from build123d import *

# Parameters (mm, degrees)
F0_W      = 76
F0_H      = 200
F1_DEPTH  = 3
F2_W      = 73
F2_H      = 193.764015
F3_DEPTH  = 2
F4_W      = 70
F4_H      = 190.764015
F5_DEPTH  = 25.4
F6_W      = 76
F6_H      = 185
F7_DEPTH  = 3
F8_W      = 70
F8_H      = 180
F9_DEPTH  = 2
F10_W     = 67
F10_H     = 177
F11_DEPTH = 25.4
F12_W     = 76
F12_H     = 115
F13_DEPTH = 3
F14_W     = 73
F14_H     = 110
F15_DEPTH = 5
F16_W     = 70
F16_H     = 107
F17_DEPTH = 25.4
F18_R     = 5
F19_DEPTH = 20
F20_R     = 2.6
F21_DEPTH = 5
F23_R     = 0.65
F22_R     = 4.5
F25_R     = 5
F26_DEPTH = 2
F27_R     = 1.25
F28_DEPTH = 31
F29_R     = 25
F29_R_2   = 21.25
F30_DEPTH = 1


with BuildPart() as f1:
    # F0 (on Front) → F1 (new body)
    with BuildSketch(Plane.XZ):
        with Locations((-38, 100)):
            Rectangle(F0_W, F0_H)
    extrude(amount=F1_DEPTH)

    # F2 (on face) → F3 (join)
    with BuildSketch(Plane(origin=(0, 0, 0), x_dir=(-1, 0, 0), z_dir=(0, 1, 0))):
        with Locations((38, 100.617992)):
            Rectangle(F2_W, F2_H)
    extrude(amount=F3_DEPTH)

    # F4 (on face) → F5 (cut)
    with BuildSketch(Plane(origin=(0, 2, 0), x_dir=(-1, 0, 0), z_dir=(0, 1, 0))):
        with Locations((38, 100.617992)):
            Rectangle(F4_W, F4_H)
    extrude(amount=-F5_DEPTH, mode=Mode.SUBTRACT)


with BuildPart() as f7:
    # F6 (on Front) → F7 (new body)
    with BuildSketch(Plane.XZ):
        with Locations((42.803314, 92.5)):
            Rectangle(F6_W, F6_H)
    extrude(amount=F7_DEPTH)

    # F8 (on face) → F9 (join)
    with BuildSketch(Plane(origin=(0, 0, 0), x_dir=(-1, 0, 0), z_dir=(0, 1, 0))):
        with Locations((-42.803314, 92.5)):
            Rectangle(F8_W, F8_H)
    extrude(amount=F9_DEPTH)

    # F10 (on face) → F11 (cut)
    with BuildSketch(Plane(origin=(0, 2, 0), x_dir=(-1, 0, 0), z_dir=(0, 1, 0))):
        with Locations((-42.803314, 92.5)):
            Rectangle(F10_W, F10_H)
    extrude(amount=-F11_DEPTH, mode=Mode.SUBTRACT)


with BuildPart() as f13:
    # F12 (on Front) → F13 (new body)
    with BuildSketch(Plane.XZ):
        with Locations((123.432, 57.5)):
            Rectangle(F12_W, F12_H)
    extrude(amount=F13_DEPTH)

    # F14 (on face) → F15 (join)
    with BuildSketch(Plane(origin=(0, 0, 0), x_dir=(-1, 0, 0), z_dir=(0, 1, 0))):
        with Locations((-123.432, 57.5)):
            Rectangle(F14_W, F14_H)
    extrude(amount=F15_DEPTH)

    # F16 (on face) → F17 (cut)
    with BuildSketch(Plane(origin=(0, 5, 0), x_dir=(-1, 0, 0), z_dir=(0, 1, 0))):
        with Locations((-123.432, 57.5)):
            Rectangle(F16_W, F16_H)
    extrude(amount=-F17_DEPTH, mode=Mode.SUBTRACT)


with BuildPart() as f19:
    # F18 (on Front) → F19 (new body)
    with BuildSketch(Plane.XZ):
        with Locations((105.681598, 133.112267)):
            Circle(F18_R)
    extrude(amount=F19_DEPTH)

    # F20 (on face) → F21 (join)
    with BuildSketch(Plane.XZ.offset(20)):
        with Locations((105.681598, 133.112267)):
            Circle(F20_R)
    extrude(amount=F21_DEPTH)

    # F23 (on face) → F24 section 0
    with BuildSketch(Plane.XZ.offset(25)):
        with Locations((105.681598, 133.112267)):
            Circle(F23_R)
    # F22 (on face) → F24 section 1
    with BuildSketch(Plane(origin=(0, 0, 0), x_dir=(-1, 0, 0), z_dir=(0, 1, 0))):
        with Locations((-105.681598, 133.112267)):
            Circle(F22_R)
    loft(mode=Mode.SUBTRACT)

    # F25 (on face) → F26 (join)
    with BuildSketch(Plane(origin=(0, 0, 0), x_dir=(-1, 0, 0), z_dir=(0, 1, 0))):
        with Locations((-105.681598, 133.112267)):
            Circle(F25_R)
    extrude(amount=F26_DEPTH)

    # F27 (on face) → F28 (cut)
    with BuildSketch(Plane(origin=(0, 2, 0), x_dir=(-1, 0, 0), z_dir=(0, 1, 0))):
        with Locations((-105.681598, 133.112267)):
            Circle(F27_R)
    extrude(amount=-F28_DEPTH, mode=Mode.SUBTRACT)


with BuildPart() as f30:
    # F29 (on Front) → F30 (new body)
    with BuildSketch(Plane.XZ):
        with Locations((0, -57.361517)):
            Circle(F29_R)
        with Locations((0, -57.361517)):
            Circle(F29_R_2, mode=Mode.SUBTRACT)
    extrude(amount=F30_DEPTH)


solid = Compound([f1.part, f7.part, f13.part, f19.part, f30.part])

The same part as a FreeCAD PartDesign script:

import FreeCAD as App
import Part
import Sketcher

V = App.Vector
Q = App.Units.Quantity


def add_polygon(sketch, points):
    """Adds a closed chain of lines whose ends are joined by coincident constraints."""
    first, n = sketch.GeometryCount, len(points)
    for a, b in zip(points, points[1:] + points[:1]):
        sketch.addGeometry(Part.LineSegment(App.Vector(*a, 0), App.Vector(*b, 0)), False)
    for i in range(n):
        sketch.addConstraint(Sketcher.Constraint("Coincident", first + i, 2, first + (i + 1) % n, 1))

doc = App.newDocument("Part")
params = doc.addObject("Spreadsheet::Sheet", "Params")
for row, (alias, value) in enumerate([
    ("sketch1_width", "76 mm"),
    ("sketch1_height", "200 mm"),
    ("pad1_length", "3 mm"),
    ("sketch2_width", "73 mm"),
    ("pad2_length", "2 mm"),
    ("sketch3_width", "70 mm"),
    ("pocket1_length", "25.4 mm"),
    ("sketch4_width", "76 mm"),
    ("sketch4_height", "185 mm"),
    ("pad3_length", "3 mm"),
    ("sketch5_width", "70 mm"),
    ("sketch5_height", "180 mm"),
    ("pad4_length", "2 mm"),
    ("sketch6_width", "67 mm"),
    ("sketch6_height", "177 mm"),
    ("pocket2_length", "25.4 mm"),
    ("sketch7_width", "76 mm"),
    ("sketch7_height", "115 mm"),
    ("pad5_length", "3 mm"),
    ("sketch8_width", "73 mm"),
    ("sketch8_height", "110 mm"),
    ("pad6_length", "5 mm"),
    ("sketch9_width", "70 mm"),
    ("sketch9_height", "107 mm"),
    ("pocket3_length", "25.4 mm"),
    ("sketch10_diameter", "10 mm"),
    ("pad7_length", "20 mm"),
    ("sketch11_diameter", "5.2 mm"),
    ("pad8_length", "5 mm"),
    ("sketch12_diameter", "1.3 mm"),
    ("sketch13_diameter", "9 mm"),
    ("sketch14_diameter", "10 mm"),
    ("pad9_length", "2 mm"),
    ("sketch15_diameter", "2.5 mm"),
    ("pocket4_length", "31 mm"),
    ("sketch16_diameter", "50 mm"),
    ("sketch16_diameter2", "42.5 mm"),
    ("pad10_length", "1 mm"),
], start=1):
    params.set(f"A{row}", alias)
    params.set(f"B{row}", "=" + value)
    params.setAlias(f"B{row}", alias)

body = doc.addObject("PartDesign::Body", "Body")

# Sketch on XZ plane
sketch1 = body.newObject("Sketcher::SketchObject", "Sketch")
sketch1.AttachmentSupport = (doc.getObject("XZ_Plane"), [""])
sketch1.MapMode = "FlatFace"
add_polygon(sketch1, [(-76, 200), (-76, 0), (0, 0), (0, 200)])  # lines 0-3
sketch1.addConstraint([
    Sketcher.Constraint("Vertical", 0),
    Sketcher.Constraint("Horizontal", 1),
    Sketcher.Constraint("Vertical", 2),
    Sketcher.Constraint("Horizontal", 3),
    Sketcher.Constraint("Coincident", 1, 2, -1, 1),
    Sketcher.Constraint("DistanceX", 1, 1, 1, 2, Q("76 mm")),
    Sketcher.Constraint("DistanceY", 0, 2, 0, 1, Q("200 mm")),
])
sketch1.setExpression("Constraints[9]", "Params.sketch1_width")
sketch1.setExpression("Constraints[10]", "Params.sketch1_height")
pad1 = body.newObject("PartDesign::Pad", "Pad")
pad1.Profile = sketch1
pad1.setExpression("Length", "Params.pad1_length")

# Sketch on XZ plane
sketch2 = body.newObject("Sketcher::SketchObject", "Sketch001")
sketch2.AttachmentSupport = (doc.getObject("XZ_Plane"), [""])
sketch2.MapMode = "FlatFace"
add_polygon(sketch2, [(-2, 197), (-2, 4), (-74, 4), (-74, 197)])  # lines 0-3
sketch2.addConstraint([
    Sketcher.Constraint("Vertical", 0),
    Sketcher.Constraint("Horizontal", 1),
    Sketcher.Constraint("Vertical", 2),
    Sketcher.Constraint("Horizontal", 3),
    Sketcher.Constraint("DistanceX", 1, 2, 1, 1, Q("73 mm")),
    Sketcher.Constraint("DistanceX", 0, 2, -1, 1, Q("1.5 mm")),
    Sketcher.Constraint("DistanceY", -1, 1, 2, 2, Q("197.5 mm")),
    Sketcher.Constraint("DistanceY", 0, 2, 0, 1, Q("193.764015 mm")),
])
sketch2.setExpression("Constraints[8]", "Params.sketch2_width")
pad2 = body.newObject("PartDesign::Pad", "Pad001")
pad2.Profile = sketch2
pad2.setExpression("Length", "Params.pad2_length")
pad2.Reversed = True

# Sketch on XZ plane
sketch3 = body.newObject("Sketcher::SketchObject", "Sketch002")
sketch3.AttachmentSupport = (doc.getObject("XZ_Plane"), [""])
sketch3.MapMode = "FlatFace"
sketch3.AttachmentOffset = App.Placement(V(0, 0, -2), App.Rotation())
add_polygon(sketch3, [(-3, 196), (-3, 5), (-73, 5), (-73, 196)])  # lines 0-3
sketch3.addConstraint([
    Sketcher.Constraint("Vertical", 0),
    Sketcher.Constraint("Horizontal", 1),
    Sketcher.Constraint("Vertical", 2),
    Sketcher.Constraint("Horizontal", 3),
    Sketcher.Constraint("DistanceX", 1, 2, 1, 1, Q("70 mm")),
    Sketcher.Constraint("DistanceX", 0, 2, -1, 1, Q("3 mm")),
    Sketcher.Constraint("DistanceY", -1, 1, 2, 2, Q("196 mm")),
    Sketcher.Constraint("DistanceY", 0, 2, 0, 1, Q("190.764015 mm")),
])
sketch3.setExpression("Constraints[8]", "Params.sketch3_width")
pocket1 = body.newObject("PartDesign::Pocket", "Pocket")
pocket1.Profile = sketch3
pocket1.setExpression("Length", "Params.pocket1_length")
pocket1.Reversed = True
body2 = doc.addObject("PartDesign::Body", "Body001")

# Sketch on XZ plane
sketch4 = body2.newObject("Sketcher::SketchObject", "Sketch003")
sketch4.AttachmentSupport = (doc.getObject("XZ_Plane001"), [""])
sketch4.MapMode = "FlatFace"
add_polygon(sketch4, [(5, 185), (5, 0), (81, 0), (81, 185)])  # lines 0-3
sketch4.addConstraint([
    Sketcher.Constraint("Vertical", 0),
    Sketcher.Constraint("Horizontal", 1),
    Sketcher.Constraint("Vertical", 2),
    Sketcher.Constraint("Horizontal", 3),
    Sketcher.Constraint("PointOnObject", 0, 2, -1),
    Sketcher.Constraint("DistanceX", 1, 1, 1, 2, Q("76 mm")),
    Sketcher.Constraint("DistanceY", 0, 2, 0, 1, Q("185 mm")),
    Sketcher.Constraint("DistanceX", -1, 1, 0, 2, Q("4.803314 mm")),
])
sketch4.setExpression("Constraints[9]", "Params.sketch4_width")
sketch4.setExpression("Constraints[10]", "Params.sketch4_height")
pad3 = body2.newObject("PartDesign::Pad", "Pad002")
pad3.Profile = sketch4
pad3.setExpression("Length", "Params.pad3_length")

# Sketch on XZ plane
sketch5 = body2.newObject("Sketcher::SketchObject", "Sketch004")
sketch5.AttachmentSupport = (doc.getObject("XZ_Plane001"), [""])
sketch5.MapMode = "FlatFace"
add_polygon(sketch5, [(78, 182), (78, 2), (8, 2), (8, 182)])  # lines 0-3
sketch5.addConstraint([
    Sketcher.Constraint("Vertical", 0),
    Sketcher.Constraint("Horizontal", 1),
    Sketcher.Constraint("Vertical", 2),
    Sketcher.Constraint("Horizontal", 3),
    Sketcher.Constraint("DistanceX", 1, 2, 1, 1, Q("70 mm")),
    Sketcher.Constraint("DistanceY", 0, 2, 0, 1, Q("180 mm")),
    Sketcher.Constraint("DistanceY", -1, 1, 0, 2, Q("2.5 mm")),
    Sketcher.Constraint("DistanceX", -1, 1, 0, 2, Q("77.803314 mm")),
])
sketch5.setExpression("Constraints[8]", "Params.sketch5_width")
sketch5.setExpression("Constraints[9]", "Params.sketch5_height")
pad4 = body2.newObject("PartDesign::Pad", "Pad003")
pad4.Profile = sketch5
pad4.setExpression("Length", "Params.pad4_length")
pad4.Reversed = True

# Sketch on XZ plane
sketch6 = body2.newObject("Sketcher::SketchObject", "Sketch005")
sketch6.AttachmentSupport = (doc.getObject("XZ_Plane001"), [""])
sketch6.MapMode = "FlatFace"
sketch6.AttachmentOffset = App.Placement(V(0, 0, -2), App.Rotation())
add_polygon(sketch6, [(76, 181), (76, 4), (9, 4), (9, 181)])  # lines 0-3
sketch6.addConstraint([
    Sketcher.Constraint("Vertical", 0),
    Sketcher.Constraint("Horizontal", 1),
    Sketcher.Constraint("Vertical", 2),
    Sketcher.Constraint("Horizontal", 3),
    Sketcher.Constraint("DistanceX", 1, 2, 1, 1, Q("67 mm")),
    Sketcher.Constraint("DistanceY", 0, 2, 0, 1, Q("177 mm")),
    Sketcher.Constraint("DistanceY", -1, 1, 0, 2, Q("4 mm")),
    Sketcher.Constraint("DistanceX", -1, 1, 0, 2, Q("76.303314 mm")),
])
sketch6.setExpression("Constraints[8]", "Params.sketch6_width")
sketch6.setExpression("Constraints[9]", "Params.sketch6_height")
pocket2 = body2.newObject("PartDesign::Pocket", "Pocket001")
pocket2.Profile = sketch6
pocket2.setExpression("Length", "Params.pocket2_length")
pocket2.Reversed = True
body3 = doc.addObject("PartDesign::Body", "Body002")

# Sketch on XZ plane
sketch7 = body3.newObject("Sketcher::SketchObject", "Sketch006")
sketch7.AttachmentSupport = (doc.getObject("XZ_Plane002"), [""])
sketch7.MapMode = "FlatFace"
add_polygon(sketch7, [(85, 115), (85, 0), (161, 0), (161, 115)])  # lines 0-3
sketch7.addConstraint([
    Sketcher.Constraint("Vertical", 0),
    Sketcher.Constraint("Horizontal", 1),
    Sketcher.Constraint("Vertical", 2),
    Sketcher.Constraint("Horizontal", 3),
    Sketcher.Constraint("PointOnObject", 0, 2, -1),
    Sketcher.Constraint("DistanceX", 1, 1, 1, 2, Q("76 mm")),
    Sketcher.Constraint("DistanceY", 0, 2, 0, 1, Q("115 mm")),
    Sketcher.Constraint("DistanceX", -1, 1, 0, 2, Q("85.432 mm")),
])
sketch7.setExpression("Constraints[9]", "Params.sketch7_width")
sketch7.setExpression("Constraints[10]", "Params.sketch7_height")
pad5 = body3.newObject("PartDesign::Pad", "Pad004")
pad5.Profile = sketch7
pad5.setExpression("Length", "Params.pad5_length")

# Sketch on XZ plane
sketch8 = body3.newObject("Sketcher::SketchObject", "Sketch007")
sketch8.AttachmentSupport = (doc.getObject("XZ_Plane002"), [""])
sketch8.MapMode = "FlatFace"
add_polygon(sketch8, [(160, 112), (160, 2), (87, 2), (87, 112)])  # lines 0-3
sketch8.addConstraint([
    Sketcher.Constraint("Vertical", 0),
    Sketcher.Constraint("Horizontal", 1),
    Sketcher.Constraint("Vertical", 2),
    Sketcher.Constraint("Horizontal", 3),
    Sketcher.Constraint("DistanceX", 1, 2, 1, 1, Q("73 mm")),
    Sketcher.Constraint("DistanceY", 0, 2, 0, 1, Q("110 mm")),
    Sketcher.Constraint("DistanceY", -1, 1, 0, 2, Q("2.5 mm")),
    Sketcher.Constraint("DistanceX", -1, 1, 0, 2, Q("159.932 mm")),
])
sketch8.setExpression("Constraints[8]", "Params.sketch8_width")
sketch8.setExpression("Constraints[9]", "Params.sketch8_height")
pad6 = body3.newObject("PartDesign::Pad", "Pad005")
pad6.Profile = sketch8
pad6.setExpression("Length", "Params.pad6_length")
pad6.Reversed = True

# Sketch on XZ plane
sketch9 = body3.newObject("Sketcher::SketchObject", "Sketch008")
sketch9.AttachmentSupport = (doc.getObject("XZ_Plane002"), [""])
sketch9.MapMode = "FlatFace"
sketch9.AttachmentOffset = App.Placement(V(0, 0, -5), App.Rotation())
add_polygon(sketch9, [(158, 111), (158, 4), (88, 4), (88, 111)])  # lines 0-3
sketch9.addConstraint([
    Sketcher.Constraint("Vertical", 0),
    Sketcher.Constraint("Horizontal", 1),
    Sketcher.Constraint("Vertical", 2),
    Sketcher.Constraint("Horizontal", 3),
    Sketcher.Constraint("DistanceX", 1, 2, 1, 1, Q("70 mm")),
    Sketcher.Constraint("DistanceY", 0, 2, 0, 1, Q("107 mm")),
    Sketcher.Constraint("DistanceY", -1, 1, 0, 2, Q("4 mm")),
    Sketcher.Constraint("DistanceX", -1, 1, 0, 2, Q("158.432 mm")),
])
sketch9.setExpression("Constraints[8]", "Params.sketch9_width")
sketch9.setExpression("Constraints[9]", "Params.sketch9_height")
pocket3 = body3.newObject("PartDesign::Pocket", "Pocket002")
pocket3.Profile = sketch9
pocket3.setExpression("Length", "Params.pocket3_length")
pocket3.Reversed = True
body4 = doc.addObject("PartDesign::Body", "Body003")

# Sketch on XZ plane
sketch10 = body4.newObject("Sketcher::SketchObject", "Sketch009")
sketch10.AttachmentSupport = (doc.getObject("XZ_Plane003"), [""])
sketch10.MapMode = "FlatFace"
sketch10.addGeometry(Part.Circle(V(106, 133, 0), V(0, 0, 1), 5), False)
sketch10.addConstraint([
    Sketcher.Constraint("Diameter", 0, Q("10 mm")),
    Sketcher.Constraint("DistanceX", -1, 1, 0, 3, Q("105.681598 mm")),
    Sketcher.Constraint("DistanceY", -1, 1, 0, 3, Q("133.112267 mm")),
])
sketch10.setExpression("Constraints[0]", "Params.sketch10_diameter")
pad7 = body4.newObject("PartDesign::Pad", "Pad006")
pad7.Profile = sketch10
pad7.setExpression("Length", "Params.pad7_length")

# Sketch on XZ plane
sketch11 = body4.newObject("Sketcher::SketchObject", "Sketch010")
sketch11.AttachmentSupport = (doc.getObject("XZ_Plane003"), [""])
sketch11.MapMode = "FlatFace"
sketch11.AttachmentOffset = App.Placement(V(0, 0, 20), App.Rotation())
sketch11.addGeometry(Part.Circle(V(105.7, 133.1, 0), V(0, 0, 1), 2.6), False)
sketch11.addConstraint([
    Sketcher.Constraint("Diameter", 0, Q("5.2 mm")),
    Sketcher.Constraint("DistanceX", -1, 1, 0, 3, Q("105.681598 mm")),
    Sketcher.Constraint("DistanceY", -1, 1, 0, 3, Q("133.112267 mm")),
])
sketch11.setExpression("Constraints[0]", "Params.sketch11_diameter")
pad8 = body4.newObject("PartDesign::Pad", "Pad007")
pad8.Profile = sketch11
pad8.setExpression("Length", "Params.pad8_length")

# Sketch on XZ plane
sketch12 = body4.newObject("Sketcher::SketchObject", "Sketch011")
sketch12.AttachmentSupport = (doc.getObject("XZ_Plane003"), [""])
sketch12.MapMode = "FlatFace"
sketch12.AttachmentOffset = App.Placement(V(0, 0, 25), App.Rotation())
sketch12.addGeometry(Part.Circle(V(105.7, 133.1, 0), V(0, 0, 1), 0.7), False)
sketch12.addConstraint([
    Sketcher.Constraint("Diameter", 0, Q("1.3 mm")),
    Sketcher.Constraint("DistanceX", -1, 1, 0, 3, Q("105.681598 mm")),
    Sketcher.Constraint("DistanceY", -1, 1, 0, 3, Q("133.112267 mm")),
])
sketch12.setExpression("Constraints[0]", "Params.sketch12_diameter")

# Sketch on XZ plane
sketch13 = body4.newObject("Sketcher::SketchObject", "Sketch012")
sketch13.AttachmentSupport = (doc.getObject("XZ_Plane003"), [""])
sketch13.MapMode = "FlatFace"
sketch13.addGeometry(Part.Circle(V(105.7, 133.1, 0), V(0, 0, 1), 4.5), False)
sketch13.addConstraint([
    Sketcher.Constraint("Diameter", 0, Q("9 mm")),
    Sketcher.Constraint("DistanceX", -1, 1, 0, 3, Q("105.681598 mm")),
    Sketcher.Constraint("DistanceY", -1, 1, 0, 3, Q("133.112267 mm")),
])
sketch13.setExpression("Constraints[0]", "Params.sketch13_diameter")

subtractiveloft = body4.newObject("PartDesign::SubtractiveLoft", "SubtractiveLoft")
subtractiveloft.Profile = sketch12
subtractiveloft.Sections = [sketch13]

# Sketch on XZ plane
sketch14 = body4.newObject("Sketcher::SketchObject", "Sketch013")
sketch14.AttachmentSupport = (doc.getObject("XZ_Plane003"), [""])
sketch14.MapMode = "FlatFace"
sketch14.addGeometry(Part.Circle(V(106, 133, 0), V(0, 0, 1), 5), False)
sketch14.addConstraint([
    Sketcher.Constraint("Diameter", 0, Q("10 mm")),
    Sketcher.Constraint("DistanceX", -1, 1, 0, 3, Q("105.681598 mm")),
    Sketcher.Constraint("DistanceY", -1, 1, 0, 3, Q("133.112267 mm")),
])
sketch14.setExpression("Constraints[0]", "Params.sketch14_diameter")
pad9 = body4.newObject("PartDesign::Pad", "Pad008")
pad9.Profile = sketch14
pad9.setExpression("Length", "Params.pad9_length")
pad9.Reversed = True

# Sketch on XZ plane
sketch15 = body4.newObject("Sketcher::SketchObject", "Sketch014")
sketch15.AttachmentSupport = (doc.getObject("XZ_Plane003"), [""])
sketch15.MapMode = "FlatFace"
sketch15.AttachmentOffset = App.Placement(V(0, 0, -2), App.Rotation())
sketch15.addGeometry(Part.Circle(V(105.7, 133.1, 0), V(0, 0, 1), 1.2), False)
sketch15.addConstraint([
    Sketcher.Constraint("Diameter", 0, Q("2.5 mm")),
    Sketcher.Constraint("DistanceX", -1, 1, 0, 3, Q("105.681598 mm")),
    Sketcher.Constraint("DistanceY", -1, 1, 0, 3, Q("133.112267 mm")),
])
sketch15.setExpression("Constraints[0]", "Params.sketch15_diameter")
pocket4 = body4.newObject("PartDesign::Pocket", "Pocket003")
pocket4.Profile = sketch15
pocket4.setExpression("Length", "Params.pocket4_length")
pocket4.Reversed = True
body5 = doc.addObject("PartDesign::Body", "Body004")

# Sketch on XZ plane
sketch16 = body5.newObject("Sketcher::SketchObject", "Sketch015")
sketch16.AttachmentSupport = (doc.getObject("XZ_Plane004"), [""])
sketch16.MapMode = "FlatFace"
sketch16.addGeometry([
    Part.Circle(V(0, -57, 0), V(0, 0, 1), 25),
    Part.Circle(V(0, -57, 0), V(0, 0, 1), 21),
], False)
sketch16.addConstraint([
    Sketcher.Constraint("Coincident", 1, 3, 0, 3),
    Sketcher.Constraint("PointOnObject", 0, 3, -2),
    Sketcher.Constraint("Diameter", 0, Q("50 mm")),
    Sketcher.Constraint("Diameter", 1, Q("42.5 mm")),
    Sketcher.Constraint("DistanceY", 0, 3, -1, 1, Q("57.361517 mm")),
])
sketch16.setExpression("Constraints[2]", "Params.sketch16_diameter")
sketch16.setExpression("Constraints[3]", "Params.sketch16_diameter2")
pad10 = body5.newObject("PartDesign::Pad", "Pad009")
pad10.Profile = sketch16
pad10.setExpression("Length", "Params.pad10_length")

doc.recompute()
